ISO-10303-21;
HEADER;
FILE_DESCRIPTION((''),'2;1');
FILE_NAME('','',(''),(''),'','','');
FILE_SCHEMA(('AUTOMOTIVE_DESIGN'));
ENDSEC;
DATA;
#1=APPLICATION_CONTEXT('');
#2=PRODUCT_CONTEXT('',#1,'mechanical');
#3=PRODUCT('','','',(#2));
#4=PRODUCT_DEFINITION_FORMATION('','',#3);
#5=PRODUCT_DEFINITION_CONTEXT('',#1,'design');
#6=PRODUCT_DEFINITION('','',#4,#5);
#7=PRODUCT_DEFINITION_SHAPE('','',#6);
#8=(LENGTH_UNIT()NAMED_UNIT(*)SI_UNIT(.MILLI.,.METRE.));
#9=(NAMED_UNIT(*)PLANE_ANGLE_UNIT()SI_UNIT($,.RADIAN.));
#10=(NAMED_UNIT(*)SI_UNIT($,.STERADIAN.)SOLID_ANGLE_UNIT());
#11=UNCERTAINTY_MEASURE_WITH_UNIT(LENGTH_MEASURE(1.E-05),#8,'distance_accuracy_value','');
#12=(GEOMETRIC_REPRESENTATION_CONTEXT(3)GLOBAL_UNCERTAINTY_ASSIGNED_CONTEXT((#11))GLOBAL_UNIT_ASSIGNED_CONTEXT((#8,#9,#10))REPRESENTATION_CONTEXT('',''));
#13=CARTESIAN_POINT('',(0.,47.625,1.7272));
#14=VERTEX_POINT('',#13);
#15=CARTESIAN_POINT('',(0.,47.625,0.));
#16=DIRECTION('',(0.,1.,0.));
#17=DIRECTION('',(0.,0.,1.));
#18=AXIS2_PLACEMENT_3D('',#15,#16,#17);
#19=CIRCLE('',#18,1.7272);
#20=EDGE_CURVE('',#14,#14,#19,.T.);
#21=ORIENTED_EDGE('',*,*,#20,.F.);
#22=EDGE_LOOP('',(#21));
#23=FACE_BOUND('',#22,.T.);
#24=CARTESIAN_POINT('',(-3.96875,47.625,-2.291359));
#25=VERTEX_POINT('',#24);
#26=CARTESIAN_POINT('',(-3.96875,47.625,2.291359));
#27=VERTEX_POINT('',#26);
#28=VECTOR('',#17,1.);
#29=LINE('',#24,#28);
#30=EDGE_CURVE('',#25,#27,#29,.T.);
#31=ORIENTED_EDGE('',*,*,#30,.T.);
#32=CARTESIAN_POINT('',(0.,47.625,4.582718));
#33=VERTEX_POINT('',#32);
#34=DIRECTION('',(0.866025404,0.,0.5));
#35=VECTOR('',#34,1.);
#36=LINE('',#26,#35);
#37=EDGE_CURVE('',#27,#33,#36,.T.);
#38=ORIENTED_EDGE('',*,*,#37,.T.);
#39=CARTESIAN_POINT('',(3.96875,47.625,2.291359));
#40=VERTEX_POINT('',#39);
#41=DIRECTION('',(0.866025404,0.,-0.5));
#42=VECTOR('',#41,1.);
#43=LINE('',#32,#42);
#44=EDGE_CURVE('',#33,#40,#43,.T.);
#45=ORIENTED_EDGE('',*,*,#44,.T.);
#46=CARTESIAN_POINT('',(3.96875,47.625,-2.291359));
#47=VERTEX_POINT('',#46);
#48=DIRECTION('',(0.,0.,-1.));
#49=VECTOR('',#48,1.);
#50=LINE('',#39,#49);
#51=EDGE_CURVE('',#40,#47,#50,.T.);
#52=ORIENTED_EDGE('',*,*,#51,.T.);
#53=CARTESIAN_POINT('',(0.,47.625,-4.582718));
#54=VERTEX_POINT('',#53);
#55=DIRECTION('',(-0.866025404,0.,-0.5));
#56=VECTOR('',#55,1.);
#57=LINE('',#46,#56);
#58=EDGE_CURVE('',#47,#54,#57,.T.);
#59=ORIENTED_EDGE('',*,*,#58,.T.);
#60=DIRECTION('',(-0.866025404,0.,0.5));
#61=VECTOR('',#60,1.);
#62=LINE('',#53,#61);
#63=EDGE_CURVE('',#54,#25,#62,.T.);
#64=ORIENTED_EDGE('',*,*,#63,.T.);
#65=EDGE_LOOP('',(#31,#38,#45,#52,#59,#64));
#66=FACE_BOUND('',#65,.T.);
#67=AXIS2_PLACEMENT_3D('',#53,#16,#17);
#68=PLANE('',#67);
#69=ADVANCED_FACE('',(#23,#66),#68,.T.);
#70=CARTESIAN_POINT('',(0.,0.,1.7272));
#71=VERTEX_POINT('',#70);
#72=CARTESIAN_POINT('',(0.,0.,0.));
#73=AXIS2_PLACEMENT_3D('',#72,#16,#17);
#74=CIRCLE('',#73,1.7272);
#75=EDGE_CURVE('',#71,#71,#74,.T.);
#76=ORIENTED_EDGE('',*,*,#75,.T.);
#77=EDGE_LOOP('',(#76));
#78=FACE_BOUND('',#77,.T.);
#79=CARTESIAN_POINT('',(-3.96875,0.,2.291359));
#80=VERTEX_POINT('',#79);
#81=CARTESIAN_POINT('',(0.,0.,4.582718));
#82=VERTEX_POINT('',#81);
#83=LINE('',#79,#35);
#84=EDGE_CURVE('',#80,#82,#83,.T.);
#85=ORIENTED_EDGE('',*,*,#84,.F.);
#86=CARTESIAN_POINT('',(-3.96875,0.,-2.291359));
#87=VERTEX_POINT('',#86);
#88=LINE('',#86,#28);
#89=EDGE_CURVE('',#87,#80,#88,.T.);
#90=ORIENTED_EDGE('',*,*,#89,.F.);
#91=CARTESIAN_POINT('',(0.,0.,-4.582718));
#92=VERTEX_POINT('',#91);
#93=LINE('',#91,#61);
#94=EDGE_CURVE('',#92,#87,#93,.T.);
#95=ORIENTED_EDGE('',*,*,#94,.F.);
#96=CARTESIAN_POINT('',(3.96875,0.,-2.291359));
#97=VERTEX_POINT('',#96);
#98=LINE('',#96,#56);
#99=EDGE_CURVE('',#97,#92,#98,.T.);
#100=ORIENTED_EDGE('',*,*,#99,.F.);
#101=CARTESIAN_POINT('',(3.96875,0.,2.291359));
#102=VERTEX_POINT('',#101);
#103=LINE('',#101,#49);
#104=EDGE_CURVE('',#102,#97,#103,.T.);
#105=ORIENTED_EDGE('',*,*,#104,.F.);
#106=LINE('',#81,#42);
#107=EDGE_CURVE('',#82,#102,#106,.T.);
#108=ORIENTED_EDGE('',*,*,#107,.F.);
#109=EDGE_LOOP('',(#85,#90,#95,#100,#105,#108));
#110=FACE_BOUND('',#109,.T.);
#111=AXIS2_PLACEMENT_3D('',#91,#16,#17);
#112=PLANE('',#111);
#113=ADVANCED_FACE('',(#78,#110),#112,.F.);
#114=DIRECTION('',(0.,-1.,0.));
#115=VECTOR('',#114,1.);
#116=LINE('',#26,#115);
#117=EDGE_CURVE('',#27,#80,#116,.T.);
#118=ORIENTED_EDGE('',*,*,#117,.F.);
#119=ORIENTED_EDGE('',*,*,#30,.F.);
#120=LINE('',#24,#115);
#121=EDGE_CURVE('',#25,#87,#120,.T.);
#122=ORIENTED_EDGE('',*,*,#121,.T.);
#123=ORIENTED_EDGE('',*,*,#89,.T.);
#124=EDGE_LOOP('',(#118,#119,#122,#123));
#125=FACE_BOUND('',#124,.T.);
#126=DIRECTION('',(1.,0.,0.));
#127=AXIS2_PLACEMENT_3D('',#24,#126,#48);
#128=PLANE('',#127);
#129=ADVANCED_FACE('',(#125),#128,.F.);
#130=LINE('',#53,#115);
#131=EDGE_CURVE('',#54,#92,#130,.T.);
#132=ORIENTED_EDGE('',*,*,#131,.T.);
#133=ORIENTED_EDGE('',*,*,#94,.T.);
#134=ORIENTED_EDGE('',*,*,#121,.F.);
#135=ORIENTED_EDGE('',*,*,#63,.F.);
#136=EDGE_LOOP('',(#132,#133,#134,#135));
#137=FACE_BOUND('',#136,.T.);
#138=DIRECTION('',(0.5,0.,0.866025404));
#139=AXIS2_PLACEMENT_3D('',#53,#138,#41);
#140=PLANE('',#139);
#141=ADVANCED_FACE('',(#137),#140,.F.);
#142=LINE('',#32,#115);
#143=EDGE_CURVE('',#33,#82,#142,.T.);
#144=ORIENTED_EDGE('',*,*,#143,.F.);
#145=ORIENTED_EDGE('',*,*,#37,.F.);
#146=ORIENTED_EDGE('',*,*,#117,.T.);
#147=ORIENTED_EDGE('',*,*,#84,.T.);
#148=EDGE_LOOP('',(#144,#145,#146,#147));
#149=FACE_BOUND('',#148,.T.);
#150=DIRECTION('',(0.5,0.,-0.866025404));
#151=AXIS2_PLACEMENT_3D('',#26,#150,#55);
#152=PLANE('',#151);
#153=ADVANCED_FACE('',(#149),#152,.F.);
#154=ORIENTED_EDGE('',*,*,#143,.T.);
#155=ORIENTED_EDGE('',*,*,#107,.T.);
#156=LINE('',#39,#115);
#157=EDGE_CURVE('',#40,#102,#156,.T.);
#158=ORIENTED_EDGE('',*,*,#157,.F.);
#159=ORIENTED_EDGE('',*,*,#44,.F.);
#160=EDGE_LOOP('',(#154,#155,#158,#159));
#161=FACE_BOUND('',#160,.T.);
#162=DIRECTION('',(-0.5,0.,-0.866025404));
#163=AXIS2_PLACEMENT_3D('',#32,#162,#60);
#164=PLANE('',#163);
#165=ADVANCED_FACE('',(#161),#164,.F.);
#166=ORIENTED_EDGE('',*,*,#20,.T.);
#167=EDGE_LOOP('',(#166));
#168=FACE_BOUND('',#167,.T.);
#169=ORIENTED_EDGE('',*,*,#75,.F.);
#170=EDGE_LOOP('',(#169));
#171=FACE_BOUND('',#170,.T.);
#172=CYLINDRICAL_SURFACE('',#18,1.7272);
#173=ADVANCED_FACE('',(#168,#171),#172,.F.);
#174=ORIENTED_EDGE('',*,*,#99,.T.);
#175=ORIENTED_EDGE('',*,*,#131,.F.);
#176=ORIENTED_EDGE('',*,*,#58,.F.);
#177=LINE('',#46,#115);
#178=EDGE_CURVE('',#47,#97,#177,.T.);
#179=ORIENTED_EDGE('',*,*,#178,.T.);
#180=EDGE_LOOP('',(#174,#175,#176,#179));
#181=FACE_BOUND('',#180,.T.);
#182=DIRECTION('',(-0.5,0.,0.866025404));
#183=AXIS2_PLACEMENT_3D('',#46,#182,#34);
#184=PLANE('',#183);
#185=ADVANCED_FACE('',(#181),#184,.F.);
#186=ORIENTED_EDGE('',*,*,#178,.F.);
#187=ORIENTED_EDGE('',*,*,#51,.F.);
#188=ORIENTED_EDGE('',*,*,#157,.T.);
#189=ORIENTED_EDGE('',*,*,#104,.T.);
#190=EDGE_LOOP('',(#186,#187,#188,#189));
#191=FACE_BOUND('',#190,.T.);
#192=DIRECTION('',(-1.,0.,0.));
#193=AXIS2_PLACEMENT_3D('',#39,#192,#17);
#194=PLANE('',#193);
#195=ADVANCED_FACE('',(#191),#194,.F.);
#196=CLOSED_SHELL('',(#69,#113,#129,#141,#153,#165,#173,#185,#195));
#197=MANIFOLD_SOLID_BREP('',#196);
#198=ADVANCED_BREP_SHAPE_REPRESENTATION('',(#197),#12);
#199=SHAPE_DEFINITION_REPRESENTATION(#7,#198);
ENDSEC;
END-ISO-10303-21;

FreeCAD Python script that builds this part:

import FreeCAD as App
import Part
import Sketcher
Q = App.Units.Quantity


def add_polygon(sketch, points):
    """Adds a closed chain of lines whose ends are joined by coincident constraints."""
    first, n = sketch.GeometryCount, len(points)
    for a, b in zip(points, points[1:] + points[:1]):
        sketch.addGeometry(Part.LineSegment(App.Vector(*a, 0), App.Vector(*b, 0)), False)
    for i in range(n):
        sketch.addConstraint(Sketcher.Constraint("Coincident", first + i, 2, first + (i + 1) % n, 1))

doc = App.newDocument("Part")
body = doc.addObject("PartDesign::Body", "Body")

# Sketch on XZ plane
sketch1 = body.newObject("Sketcher::SketchObject", "Sketch")
sketch1.AttachmentSupport = (doc.getObject("XZ_Plane"), [""])
sketch1.MapMode = "FlatFace"
add_polygon(sketch1, [(0, -4.582718), (-3.96875, -2.291359), (-3.96875, 2.291359), (0, 4.582718), (3.96875, 2.291359), (3.96875, -2.291359)])  # lines 0-5
sketch1.addConstraint([
    Sketcher.Constraint("Vertical", 1),
    Sketcher.Constraint("Vertical", 4),
    Sketcher.Constraint("Symmetric", 0, 2, 3, 2, -1, 1),
    Sketcher.Constraint("Symmetric", 2, 2, 5, 2, -1, 1),
    Sketcher.Constraint("PointOnObject", 2, 2, -2),
    Sketcher.Constraint("Parallel", 2, 5),
    Sketcher.Constraint("Horizontal", 1, 2, 3, 2),
    Sketcher.Constraint("Angle", 0, Q("150 deg")),
    Sketcher.Constraint("DistanceX", 0, 2, -1, 1, Q("0.15625 in")),
    Sketcher.Constraint("DistanceY", 1, 1, 1, 2, 4.582718),
])
pad1 = body.newObject("PartDesign::Pad", "Pad")
pad1.Profile = sketch1
pad1.Length = Q("1.875 in")
pad1.Reversed = True

# Sketch on XZ plane
sketch2 = body.newObject("Sketcher::SketchObject", "Sketch001")
sketch2.AttachmentSupport = (doc.getObject("XZ_Plane"), [""])
sketch2.MapMode = "FlatFace"
sketch2.AttachmentOffset = App.Placement(App.Vector(0, 0, -1.875 * 25.4), App.Rotation())
sketch2.addGeometry(Part.Circle(App.Vector(0, 0, 0), App.Vector(0, 0, 1), 1.7272), False)
sketch2.addConstraint([
    Sketcher.Constraint("Coincident", 0, 3, -1, 1),
    Sketcher.Constraint("Diameter", 0, Q("0.136 in")),
])
doc.recompute()
hole = body.newObject("PartDesign::Hole", "Hole")
hole.Profile = sketch2
hole.ThreadType = "None"
hole.Diameter = Q("0.136 in")
hole.DepthType = "ThroughAll"
hole.Reversed = True

doc.recompute()
